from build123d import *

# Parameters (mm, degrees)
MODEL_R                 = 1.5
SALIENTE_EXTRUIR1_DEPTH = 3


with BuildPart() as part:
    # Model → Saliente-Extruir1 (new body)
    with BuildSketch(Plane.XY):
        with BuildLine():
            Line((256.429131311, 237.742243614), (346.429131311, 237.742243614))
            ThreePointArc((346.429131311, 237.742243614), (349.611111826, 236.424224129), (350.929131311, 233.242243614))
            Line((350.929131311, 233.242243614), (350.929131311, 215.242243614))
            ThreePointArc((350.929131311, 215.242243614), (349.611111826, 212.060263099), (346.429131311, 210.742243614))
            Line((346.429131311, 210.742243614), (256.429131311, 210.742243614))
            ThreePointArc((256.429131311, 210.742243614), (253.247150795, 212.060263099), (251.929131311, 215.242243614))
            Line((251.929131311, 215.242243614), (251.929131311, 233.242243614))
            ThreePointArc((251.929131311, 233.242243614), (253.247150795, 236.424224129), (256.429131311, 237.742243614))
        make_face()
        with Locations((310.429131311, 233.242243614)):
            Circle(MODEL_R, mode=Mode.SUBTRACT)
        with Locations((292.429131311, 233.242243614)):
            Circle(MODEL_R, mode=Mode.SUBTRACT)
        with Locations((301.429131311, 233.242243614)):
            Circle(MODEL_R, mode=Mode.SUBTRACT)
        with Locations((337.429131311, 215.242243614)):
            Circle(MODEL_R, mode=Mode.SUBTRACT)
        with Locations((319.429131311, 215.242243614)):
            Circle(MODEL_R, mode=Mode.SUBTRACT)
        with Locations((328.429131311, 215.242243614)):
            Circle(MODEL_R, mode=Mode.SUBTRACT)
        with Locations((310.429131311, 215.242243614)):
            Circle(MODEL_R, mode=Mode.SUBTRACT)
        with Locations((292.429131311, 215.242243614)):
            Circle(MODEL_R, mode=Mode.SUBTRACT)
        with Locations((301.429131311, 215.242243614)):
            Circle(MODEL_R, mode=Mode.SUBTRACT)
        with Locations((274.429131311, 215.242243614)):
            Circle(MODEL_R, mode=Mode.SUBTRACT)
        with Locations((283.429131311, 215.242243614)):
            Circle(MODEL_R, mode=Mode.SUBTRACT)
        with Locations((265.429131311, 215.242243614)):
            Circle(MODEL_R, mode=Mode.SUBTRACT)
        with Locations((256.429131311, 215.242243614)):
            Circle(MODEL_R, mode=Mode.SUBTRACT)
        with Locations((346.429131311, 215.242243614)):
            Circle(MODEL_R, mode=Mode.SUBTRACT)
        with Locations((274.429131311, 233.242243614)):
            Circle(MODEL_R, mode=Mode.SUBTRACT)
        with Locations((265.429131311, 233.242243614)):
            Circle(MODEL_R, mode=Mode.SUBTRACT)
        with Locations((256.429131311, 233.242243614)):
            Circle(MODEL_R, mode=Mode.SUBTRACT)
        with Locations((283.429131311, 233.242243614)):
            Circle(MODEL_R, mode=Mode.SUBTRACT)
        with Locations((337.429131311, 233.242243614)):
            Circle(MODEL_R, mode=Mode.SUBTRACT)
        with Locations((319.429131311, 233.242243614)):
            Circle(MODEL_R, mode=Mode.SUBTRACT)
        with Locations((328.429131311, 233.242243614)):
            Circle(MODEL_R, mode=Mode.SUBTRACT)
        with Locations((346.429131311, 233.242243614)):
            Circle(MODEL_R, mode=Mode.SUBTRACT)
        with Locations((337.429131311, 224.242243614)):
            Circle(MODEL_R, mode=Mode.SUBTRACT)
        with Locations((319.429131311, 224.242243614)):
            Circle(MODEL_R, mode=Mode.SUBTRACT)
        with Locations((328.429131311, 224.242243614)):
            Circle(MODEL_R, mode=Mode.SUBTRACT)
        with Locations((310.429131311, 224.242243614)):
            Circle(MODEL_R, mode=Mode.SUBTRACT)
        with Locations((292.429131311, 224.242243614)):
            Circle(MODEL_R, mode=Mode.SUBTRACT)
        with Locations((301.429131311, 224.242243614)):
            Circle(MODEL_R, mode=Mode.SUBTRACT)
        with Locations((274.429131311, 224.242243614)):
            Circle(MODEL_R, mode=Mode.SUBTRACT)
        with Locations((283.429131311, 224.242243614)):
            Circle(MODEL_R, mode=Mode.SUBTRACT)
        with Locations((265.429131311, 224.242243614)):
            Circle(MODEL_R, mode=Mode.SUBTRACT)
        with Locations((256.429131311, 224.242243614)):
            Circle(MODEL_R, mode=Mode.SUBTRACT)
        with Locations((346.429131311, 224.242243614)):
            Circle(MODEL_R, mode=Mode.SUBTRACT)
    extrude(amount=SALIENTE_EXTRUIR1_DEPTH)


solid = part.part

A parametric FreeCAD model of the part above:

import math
import FreeCAD as App
import Part
import Sketcher

V = App.Vector

doc = App.newDocument("Part")
body = doc.addObject("PartDesign::Body", "Body")

sketch1 = body.newObject("Sketcher::SketchObject", "Sketch")
sketch1.AttachmentSupport = (doc.getObject("XY_Plane"), [""])
sketch1.MapMode = "FlatFace"
sketch1.addGeometry([
    Part.LineSegment(V(346.4, 237.7, 0), V(256.4, 237.7, 0)),
    Part.ArcOfCircle(Part.Circle(V(256.4, 233.2, 0), V(0, 0, 1), 4.5), math.radians(90), math.radians(180)),
    Part.LineSegment(V(251.9, 233.2, 0), V(251.9, 215.2, 0)),
    Part.ArcOfCircle(Part.Circle(V(256.4, 215.2, 0), V(0, 0, 1), 4.5), math.radians(180), math.radians(270)),
    Part.LineSegment(V(256.4, 210.7, 0), V(346.4, 210.7, 0)),
    Part.ArcOfCircle(Part.Circle(V(346.4, 215.2, 0), V(0, 0, 1), 4.5), math.radians(-90), math.radians(0)),
    Part.LineSegment(V(350.9, 215.2, 0), V(350.9, 233.2, 0)),
    Part.ArcOfCircle(Part.Circle(V(346.4, 233.2, 0), V(0, 0, 1), 4.5), math.radians(0), math.radians(90)),
    Part.Circle(V(346.4, 215.2, 0), V(0, 0, 1), 1.5),
    Part.Circle(V(337.4, 215.2, 0), V(0, 0, 1), 1.5),
    Part.Circle(V(328.4, 215.2, 0), V(0, 0, 1), 1.5),
    Part.Circle(V(319.4, 215.2, 0), V(0, 0, 1), 1.5),
    Part.Circle(V(310.4, 215.2, 0), V(0, 0, 1), 1.5),
    Part.Circle(V(301.4, 215.2, 0), V(0, 0, 1), 1.5),
    Part.Circle(V(292.4, 215.2, 0), V(0, 0, 1), 1.5),
    Part.Circle(V(283.4, 215.2, 0), V(0, 0, 1), 1.5),
    Part.Circle(V(274.4, 215.2, 0), V(0, 0, 1), 1.5),
    Part.Circle(V(265.4, 215.2, 0), V(0, 0, 1), 1.5),
    Part.Circle(V(256.4, 215.2, 0), V(0, 0, 1), 1.5),
    Part.Circle(V(346.4, 224.2, 0), V(0, 0, 1), 1.5),
    Part.Circle(V(337.4, 224.2, 0), V(0, 0, 1), 1.5),
    Part.Circle(V(328.4, 224.2, 0), V(0, 0, 1), 1.5),
    Part.Circle(V(319.4, 224.2, 0), V(0, 0, 1), 1.5),
    Part.Circle(V(310.4, 224.2, 0), V(0, 0, 1), 1.5),
    Part.Circle(V(346.4, 233.2, 0), V(0, 0, 1), 1.5),
    Part.Circle(V(337.4, 233.2, 0), V(0, 0, 1), 1.5),
    Part.Circle(V(328.4, 233.2, 0), V(0, 0, 1), 1.5),
    Part.Circle(V(319.4, 233.2, 0), V(0, 0, 1), 1.5),
    Part.Circle(V(310.4, 233.2, 0), V(0, 0, 1), 1.5),
    Part.Circle(V(301.4, 224.2, 0), V(0, 0, 1), 1.5),
    Part.Circle(V(292.4, 224.2, 0), V(0, 0, 1), 1.5),
    Part.Circle(V(283.4, 224.2, 0), V(0, 0, 1), 1.5),
    Part.Circle(V(274.4, 224.2, 0), V(0, 0, 1), 1.5),
    Part.Circle(V(265.4, 224.2, 0), V(0, 0, 1), 1.5),
    Part.Circle(V(256.4, 224.2, 0), V(0, 0, 1), 1.5),
    Part.Circle(V(301.4, 233.2, 0), V(0, 0, 1), 1.5),
    Part.Circle(V(292.4, 233.2, 0), V(0, 0, 1), 1.5),
    Part.Circle(V(283.4, 233.2, 0), V(0, 0, 1), 1.5),
    Part.Circle(V(274.4, 233.2, 0), V(0, 0, 1), 1.5),
    Part.Circle(V(265.4, 233.2, 0), V(0, 0, 1), 1.5),
    Part.Circle(V(256.4, 233.2, 0), V(0, 0, 1), 1.5),
], False)
sketch1.addConstraint([
    Sketcher.Constraint("Tangent", 0, 2, 1, 1),
    Sketcher.Constraint("Tangent", 1, 2, 2, 1),
    Sketcher.Constraint("Tangent", 2, 2, 3, 1),
    Sketcher.Constraint("Tangent", 3, 2, 4, 1),
    Sketcher.Constraint("Tangent", 4, 2, 5, 1),
    Sketcher.Constraint("Tangent", 5, 2, 6, 1),
    Sketcher.Constraint("Tangent", 6, 2, 7, 1),
    Sketcher.Constraint("Tangent", 7, 2, 0, 1),
    Sketcher.Constraint("Horizontal", 0),
    Sketcher.Constraint("Vertical", 2),
    Sketcher.Constraint("Horizontal", 4),
    Sketcher.Constraint("Vertical", 6),
    Sketcher.Constraint("Coincident", 8, 3, 5, 3),
    Sketcher.Constraint("Coincident", 18, 3, 3, 3),
    Sketcher.Constraint("Coincident", 24, 3, 7, 3),
    Sketcher.Constraint("Coincident", 40, 3, 1, 3),
    Sketcher.Constraint("Equal", 1, 3),
    Sketcher.Constraint("Equal", 3, 5),
    Sketcher.Constraint("Equal", 5, 7),
    Sketcher.Constraint("Equal", 8, 9),
    Sketcher.Constraint("Equal", 9, 10),
    Sketcher.Constraint("Equal", 10, 11),
    Sketcher.Constraint("Equal", 11, 12),
    Sketcher.Constraint("Equal", 12, 13),
    Sketcher.Constraint("Equal", 13, 14),
    Sketcher.Constraint("Equal", 14, 15),
    Sketcher.Constraint("Equal", 15, 16),
    Sketcher.Constraint("Equal", 16, 17),
    Sketcher.Constraint("Equal", 17, 18),
    Sketcher.Constraint("Equal", 18, 19),
    Sketcher.Constraint("Equal", 19, 20),
    Sketcher.Constraint("Equal", 20, 21),
    Sketcher.Constraint("Equal", 21, 22),
    Sketcher.Constraint("Equal", 22, 23),
    Sketcher.Constraint("Equal", 23, 24),
    Sketcher.Constraint("Equal", 24, 25),
    Sketcher.Constraint("Equal", 25, 26),
    Sketcher.Constraint("Equal", 26, 27),
    Sketcher.Constraint("Equal", 27, 28),
    Sketcher.Constraint("Equal", 28, 29),
    Sketcher.Constraint("Equal", 29, 30),
    Sketcher.Constraint("Equal", 30, 31),
    Sketcher.Constraint("Equal", 31, 32),
    Sketcher.Constraint("Equal", 32, 33),
    Sketcher.Constraint("Equal", 33, 34),
    Sketcher.Constraint("Equal", 34, 35),
    Sketcher.Constraint("Equal", 35, 36),
    Sketcher.Constraint("Equal", 36, 37),
    Sketcher.Constraint("Equal", 37, 38),
    Sketcher.Constraint("Equal", 38, 39),
    Sketcher.Constraint("Equal", 39, 40),
    Sketcher.Constraint("Horizontal", 8, 3, 9, 3),
    Sketcher.Constraint("Horizontal", 9, 3, 10, 3),
    Sketcher.Constraint("Horizontal", 10, 3, 11, 3),
    Sketcher.Constraint("Horizontal", 11, 3, 12, 3),
    Sketcher.Constraint("Horizontal", 12, 3, 13, 3),
    Sketcher.Constraint("Horizontal", 13, 3, 14, 3),
    Sketcher.Constraint("Horizontal", 14, 3, 15, 3),
    Sketcher.Constraint("Horizontal", 15, 3, 16, 3),
    Sketcher.Constraint("Horizontal", 16, 3, 17, 3),
    Sketcher.Constraint("Horizontal", 19, 3, 20, 3),
    Sketcher.Constraint("Horizontal", 20, 3, 21, 3),
    Sketcher.Constraint("Horizontal", 21, 3, 22, 3),
    Sketcher.Constraint("Horizontal", 22, 3, 23, 3),
    Sketcher.Constraint("Horizontal", 24, 3, 25, 3),
    Sketcher.Constraint("Horizontal", 25, 3, 26, 3),
    Sketcher.Constraint("Horizontal", 26, 3, 27, 3),
    Sketcher.Constraint("Horizontal", 27, 3, 28, 3),
    Sketcher.Constraint("Horizontal", 23, 3, 29, 3),
    Sketcher.Constraint("Horizontal", 29, 3, 30, 3),
    Sketcher.Constraint("Horizontal", 30, 3, 31, 3),
    Sketcher.Constraint("Horizontal", 31, 3, 32, 3),
    Sketcher.Constraint("Horizontal", 32, 3, 33, 3),
    Sketcher.Constraint("Horizontal", 33, 3, 34, 3),
    Sketcher.Constraint("Horizontal", 28, 3, 35, 3),
    Sketcher.Constraint("Horizontal", 35, 3, 36, 3),
    Sketcher.Constraint("Horizontal", 36, 3, 37, 3),
    Sketcher.Constraint("Horizontal", 37, 3, 38, 3),
    Sketcher.Constraint("Horizontal", 38, 3, 39, 3),
    Sketcher.Constraint("Vertical", 8, 3, 19, 3),
    Sketcher.Constraint("Vertical", 9, 3, 20, 3),
    Sketcher.Constraint("Vertical", 10, 3, 21, 3),
    Sketcher.Constraint("Vertical", 11, 3, 22, 3),
    Sketcher.Constraint("Vertical", 12, 3, 23, 3),
    Sketcher.Constraint("Vertical", 20, 3, 25, 3),
    Sketcher.Constraint("Vertical", 21, 3, 26, 3),
    Sketcher.Constraint("Vertical", 22, 3, 27, 3),
    Sketcher.Constraint("Vertical", 23, 3, 28, 3),
    Sketcher.Constraint("Vertical", 13, 3, 29, 3),
    Sketcher.Constraint("Vertical", 14, 3, 30, 3),
    Sketcher.Constraint("Vertical", 15, 3, 31, 3),
    Sketcher.Constraint("Vertical", 16, 3, 32, 3),
    Sketcher.Constraint("Vertical", 17, 3, 33, 3),
    Sketcher.Constraint("Vertical", 18, 3, 34, 3),
    Sketcher.Constraint("Vertical", 29, 3, 35, 3),
    Sketcher.Constraint("Vertical", 30, 3, 36, 3),
    Sketcher.Constraint("Vertical", 31, 3, 37, 3),
    Sketcher.Constraint("Vertical", 32, 3, 38, 3),
    Sketcher.Constraint("Vertical", 33, 3, 39, 3),
    Sketcher.Constraint("Diameter", 8, 3.0),
    Sketcher.Constraint("Radius", 1, 4.5),
    Sketcher.Constraint("DistanceX", 0, 2, 0, 1, 90.0),
    Sketcher.Constraint("DistanceY", 2, 2, 2, 1, 18.0),
    Sketcher.Constraint("DistanceX", 9, 3, 5, 3, 9.0),
    Sketcher.Constraint("DistanceX", 10, 3, 9, 3, 9.0),
    Sketcher.Constraint("DistanceX", 11, 3, 10, 3, 9.0),
    Sketcher.Constraint("DistanceX", 12, 3, 11, 3, 9.0),
    Sketcher.Constraint("DistanceX", 13, 3, 12, 3, 9.0),
    Sketcher.Constraint("DistanceX", 14, 3, 13, 3, 9.0),
    Sketcher.Constraint("DistanceX", 15, 3, 14, 3, 9.0),
    Sketcher.Constraint("DistanceX", 16, 3, 15, 3, 9.0),
    Sketcher.Constraint("DistanceX", 17, 3, 16, 3, 9.0),
    Sketcher.Constraint("DistanceY", 5, 3, 19, 3, 9.0),
    Sketcher.Constraint("DistanceX", -1, 1, 1, 3, 256.429131),
    Sketcher.Constraint("DistanceY", -1, 1, 1, 3, 233.242244),
])
pad1 = body.newObject("PartDesign::Pad", "Pad")
pad1.Profile = sketch1
pad1.Length = 3

doc.recompute()
